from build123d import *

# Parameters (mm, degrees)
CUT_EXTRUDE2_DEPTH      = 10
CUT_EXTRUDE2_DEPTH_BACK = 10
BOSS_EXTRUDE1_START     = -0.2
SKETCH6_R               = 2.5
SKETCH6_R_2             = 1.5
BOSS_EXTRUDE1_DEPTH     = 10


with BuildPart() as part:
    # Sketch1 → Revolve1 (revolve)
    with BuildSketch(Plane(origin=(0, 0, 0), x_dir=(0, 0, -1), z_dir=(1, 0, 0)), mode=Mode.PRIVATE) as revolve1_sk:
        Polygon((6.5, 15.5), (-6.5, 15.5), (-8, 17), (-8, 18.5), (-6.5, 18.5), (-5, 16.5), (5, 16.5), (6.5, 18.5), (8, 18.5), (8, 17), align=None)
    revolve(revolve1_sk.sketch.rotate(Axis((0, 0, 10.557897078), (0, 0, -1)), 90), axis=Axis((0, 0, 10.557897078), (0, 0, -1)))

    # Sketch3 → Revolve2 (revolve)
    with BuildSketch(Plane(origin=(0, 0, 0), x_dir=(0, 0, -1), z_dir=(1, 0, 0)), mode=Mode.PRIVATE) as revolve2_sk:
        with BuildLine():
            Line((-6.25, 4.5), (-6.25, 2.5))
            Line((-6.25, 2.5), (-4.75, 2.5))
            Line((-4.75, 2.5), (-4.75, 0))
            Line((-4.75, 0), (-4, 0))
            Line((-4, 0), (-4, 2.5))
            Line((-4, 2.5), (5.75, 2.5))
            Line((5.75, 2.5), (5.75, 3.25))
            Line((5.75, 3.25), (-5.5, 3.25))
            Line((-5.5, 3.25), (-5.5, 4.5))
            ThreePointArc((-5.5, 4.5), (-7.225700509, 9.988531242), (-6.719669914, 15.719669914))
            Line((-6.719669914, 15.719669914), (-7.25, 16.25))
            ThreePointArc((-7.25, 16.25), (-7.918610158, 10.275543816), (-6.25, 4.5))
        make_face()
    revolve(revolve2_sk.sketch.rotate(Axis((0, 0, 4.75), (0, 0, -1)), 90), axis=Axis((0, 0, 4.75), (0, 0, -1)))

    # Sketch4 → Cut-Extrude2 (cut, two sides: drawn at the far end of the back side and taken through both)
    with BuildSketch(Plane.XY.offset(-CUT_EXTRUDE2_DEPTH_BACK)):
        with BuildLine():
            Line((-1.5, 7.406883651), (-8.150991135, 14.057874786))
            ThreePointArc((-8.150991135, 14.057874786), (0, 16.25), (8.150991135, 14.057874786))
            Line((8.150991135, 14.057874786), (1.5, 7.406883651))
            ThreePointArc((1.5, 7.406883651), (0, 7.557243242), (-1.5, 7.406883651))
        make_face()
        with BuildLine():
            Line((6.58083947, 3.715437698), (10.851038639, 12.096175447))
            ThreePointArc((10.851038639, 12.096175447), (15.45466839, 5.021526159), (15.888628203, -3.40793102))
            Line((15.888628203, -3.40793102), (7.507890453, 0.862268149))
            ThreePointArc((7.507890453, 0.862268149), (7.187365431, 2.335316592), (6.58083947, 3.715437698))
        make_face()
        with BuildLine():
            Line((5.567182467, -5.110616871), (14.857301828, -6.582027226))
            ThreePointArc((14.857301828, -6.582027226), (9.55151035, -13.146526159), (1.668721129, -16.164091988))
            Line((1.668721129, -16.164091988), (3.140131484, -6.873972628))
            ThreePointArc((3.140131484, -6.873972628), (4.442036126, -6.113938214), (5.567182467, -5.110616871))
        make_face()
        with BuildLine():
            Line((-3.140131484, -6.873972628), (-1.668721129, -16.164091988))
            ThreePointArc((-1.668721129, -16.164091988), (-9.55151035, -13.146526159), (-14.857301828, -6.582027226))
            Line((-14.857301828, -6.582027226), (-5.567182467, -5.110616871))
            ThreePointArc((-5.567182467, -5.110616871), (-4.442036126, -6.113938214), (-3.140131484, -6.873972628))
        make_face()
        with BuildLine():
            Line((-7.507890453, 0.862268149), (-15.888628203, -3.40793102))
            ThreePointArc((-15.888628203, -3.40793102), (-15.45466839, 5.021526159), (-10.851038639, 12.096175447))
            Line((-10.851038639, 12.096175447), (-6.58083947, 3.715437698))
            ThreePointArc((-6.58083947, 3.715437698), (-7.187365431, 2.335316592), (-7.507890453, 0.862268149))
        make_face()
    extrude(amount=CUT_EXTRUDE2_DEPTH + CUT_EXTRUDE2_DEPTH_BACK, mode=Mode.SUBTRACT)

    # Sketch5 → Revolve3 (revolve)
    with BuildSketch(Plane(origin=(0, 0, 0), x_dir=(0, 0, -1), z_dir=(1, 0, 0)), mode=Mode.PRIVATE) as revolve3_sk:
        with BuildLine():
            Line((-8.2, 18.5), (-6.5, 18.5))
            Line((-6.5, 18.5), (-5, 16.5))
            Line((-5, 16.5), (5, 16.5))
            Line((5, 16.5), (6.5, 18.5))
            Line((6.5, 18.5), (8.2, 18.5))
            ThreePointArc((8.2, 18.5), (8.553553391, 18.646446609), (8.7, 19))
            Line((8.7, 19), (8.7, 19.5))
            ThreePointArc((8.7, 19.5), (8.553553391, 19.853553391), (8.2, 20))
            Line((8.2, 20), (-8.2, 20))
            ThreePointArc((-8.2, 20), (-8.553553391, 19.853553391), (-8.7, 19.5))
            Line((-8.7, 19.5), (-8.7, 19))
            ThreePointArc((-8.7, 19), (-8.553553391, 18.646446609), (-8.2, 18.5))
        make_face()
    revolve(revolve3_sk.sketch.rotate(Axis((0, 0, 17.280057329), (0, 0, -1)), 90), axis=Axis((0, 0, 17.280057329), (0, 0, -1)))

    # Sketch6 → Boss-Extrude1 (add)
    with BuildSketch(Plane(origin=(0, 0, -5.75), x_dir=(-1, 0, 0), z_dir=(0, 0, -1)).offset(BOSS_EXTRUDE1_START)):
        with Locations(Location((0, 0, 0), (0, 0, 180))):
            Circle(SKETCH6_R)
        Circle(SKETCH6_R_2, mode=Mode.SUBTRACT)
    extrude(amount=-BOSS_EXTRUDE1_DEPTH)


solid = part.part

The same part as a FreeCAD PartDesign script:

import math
import FreeCAD as App
import Part
import Sketcher

V = App.Vector
Q = App.Units.Quantity

doc = App.newDocument("Part")
body = doc.addObject("PartDesign::Body", "Body")

# Sketch on YZ plane
sketch1 = body.newObject("Sketcher::SketchObject", "Sketch")
sketch1.AttachmentSupport = (doc.getObject("YZ_Plane"), [""])
sketch1.MapMode = "FlatFace"
sketch1.addGeometry(Part.LineSegment(V(15.5, 6.5, 0), V(15.5, -6.5, 0)), False)
sketch1.addGeometry(Part.LineSegment(V(15.5, -6.5, 0), V(17, -8, 0)), False)
sketch1.addGeometry(Part.LineSegment(V(17, -8, 0), V(18.5, -8, 0)), False)
sketch1.addGeometry(Part.LineSegment(V(18.5, -8, 0), V(18.5, -6.5, 0)), False)
sketch1.addGeometry(Part.LineSegment(V(18.5, -6.5, 0), V(16.5, -5, 0)), False)
sketch1.addGeometry(Part.LineSegment(V(16.5, -5, 0), V(16.5, 5, 0)), False)
sketch1.addGeometry(Part.LineSegment(V(16.5, 5, 0), V(18.5, 6.5, 0)), False)
sketch1.addGeometry(Part.LineSegment(V(18.5, 6.5, 0), V(18.5, 8, 0)), False)
sketch1.addGeometry(Part.LineSegment(V(18.5, 8, 0), V(17, 8, 0)), False)
sketch1.addGeometry(Part.LineSegment(V(17, 8, 0), V(15.5, 6.5, 0)), False)
sketch1.addConstraint(Sketcher.Constraint("Coincident", 0, 2, 1, 1))
sketch1.addConstraint(Sketcher.Constraint("Coincident", 1, 2, 2, 1))
sketch1.addConstraint(Sketcher.Constraint("Coincident", 2, 2, 3, 1))
sketch1.addConstraint(Sketcher.Constraint("Coincident", 3, 2, 4, 1))
sketch1.addConstraint(Sketcher.Constraint("Coincident", 4, 2, 5, 1))
sketch1.addConstraint(Sketcher.Constraint("Coincident", 5, 2, 6, 1))
sketch1.addConstraint(Sketcher.Constraint("Coincident", 6, 2, 7, 1))
sketch1.addConstraint(Sketcher.Constraint("Coincident", 7, 2, 8, 1))
sketch1.addConstraint(Sketcher.Constraint("Coincident", 8, 2, 9, 1))
sketch1.addConstraint(Sketcher.Constraint("Coincident", 9, 2, 0, 1))
sketch1.addConstraint(Sketcher.Constraint("Vertical", 0))
sketch1.addConstraint(Sketcher.Constraint("Horizontal", 2))
sketch1.addConstraint(Sketcher.Constraint("Vertical", 3))
sketch1.addConstraint(Sketcher.Constraint("Vertical", 5))
sketch1.addConstraint(Sketcher.Constraint("Vertical", 7))
sketch1.addConstraint(Sketcher.Constraint("Horizontal", 8))
sketch1.addConstraint(Sketcher.Constraint("Symmetric", 3, 2, 6, 2, -1))
sketch1.addConstraint(Sketcher.Constraint("Symmetric", 1, 2, 8, 2, -1))
sketch1.addConstraint(Sketcher.Constraint("Perpendicular", 1, 9))
sketch1.addConstraint(Sketcher.Constraint("Horizontal", 0, 2, 3, 2))
sketch1.addConstraint(Sketcher.Constraint("Horizontal", 6, 2, 9, 2))
sketch1.addConstraint(Sketcher.Constraint("Equal", 8, 3))
sketch1.addConstraint(Sketcher.Constraint("Equal", 4, 6))
sketch1.addConstraint(Sketcher.Constraint("DistanceY", 0, 2, 0, 1, Q("13 mm")))
sketch1.addConstraint(Sketcher.Constraint("DistanceY", 5, 1, 5, 2, Q("10 mm")))
sketch1.addConstraint(Sketcher.Constraint("DistanceX", 2, 1, 2, 2, Q("1.5 mm")))
sketch1.addConstraint(Sketcher.Constraint("DistanceX", -1, 1, 1, 2, Q("17 mm")))
sketch1.addConstraint(Sketcher.Constraint("DistanceX", 0, 2, 4, 2, Q("1 mm")))
revolution = body.newObject("PartDesign::Revolution", "Revolution")
revolution.Profile = sketch1
revolution.ReferenceAxis = (sketch1, ["V_Axis"])
revolution.Angle = 360

# Sketch on YZ plane
sketch2 = body.newObject("Sketcher::SketchObject", "Sketch001")
sketch2.AttachmentSupport = (doc.getObject("YZ_Plane"), [""])
sketch2.MapMode = "FlatFace"
sketch2.addGeometry(Part.LineSegment(V(4.5, 6.2, 0), V(2.5, 6.2, 0)), False)
sketch2.addGeometry(Part.LineSegment(V(2.5, 6.2, 0), V(2.5, 4.8, 0)), False)
sketch2.addGeometry(Part.LineSegment(V(2.5, 4.8, 0), V(0, 4.8, 0)), False)
sketch2.addGeometry(Part.LineSegment(V(0, 4.8, 0), V(0, 4, 0)), False)
sketch2.addGeometry(Part.LineSegment(V(0, 4, 0), V(2.5, 4, 0)), False)
sketch2.addGeometry(Part.LineSegment(V(2.5, 4, 0), V(2.5, -5.8, 0)), False)
sketch2.addGeometry(Part.LineSegment(V(2.5, -5.8, 0), V(3.2, -5.8, 0)), False)
sketch2.addGeometry(Part.LineSegment(V(3.2, -5.8, 0), V(3.2, 5.5, 0)), False)
sketch2.addGeometry(Part.LineSegment(V(3.2, 5.5, 0), V(4.5, 5.5, 0)), False)
sketch2.addGeometry(Part.ArcOfCircle(Part.Circle(V(11.6, -7.4, 0), V(0, 0, 1), 14.7), math.radians(74), math.radians(119)), False)
sketch2.addGeometry(Part.LineSegment(V(15.7, 6.7, 0), V(16.2, 7.2, 0)), False)
sketch2.addGeometry(Part.ArcOfCircle(Part.Circle(V(11.6, -7.4, 0), V(0, 0, 1), 15.4), math.radians(72), math.radians(117)), False)
sketch2.addConstraint(Sketcher.Constraint("Coincident", 0, 2, 1, 1))
sketch2.addConstraint(Sketcher.Constraint("Coincident", 1, 2, 2, 1))
sketch2.addConstraint(Sketcher.Constraint("Coincident", 2, 2, 3, 1))
sketch2.addConstraint(Sketcher.Constraint("Coincident", 3, 2, 4, 1))
sketch2.addConstraint(Sketcher.Constraint("Coincident", 4, 2, 5, 1))
sketch2.addConstraint(Sketcher.Constraint("Coincident", 5, 2, 6, 1))
sketch2.addConstraint(Sketcher.Constraint("Coincident", 6, 2, 7, 1))
sketch2.addConstraint(Sketcher.Constraint("Coincident", 7, 2, 8, 1))
sketch2.addConstraint(Sketcher.Constraint("Coincident", 8, 2, 9, 2))
sketch2.addConstraint(Sketcher.Constraint("Coincident", 9, 1, 10, 1))
sketch2.addConstraint(Sketcher.Constraint("Coincident", 10, 2, 11, 1))
sketch2.addConstraint(Sketcher.Constraint("Coincident", 11, 2, 0, 1))
sketch2.addConstraint(Sketcher.Constraint("Horizontal", 0))
sketch2.addConstraint(Sketcher.Constraint("Vertical", 1))
sketch2.addConstraint(Sketcher.Constraint("Horizontal", 2))
sketch2.addConstraint(Sketcher.Constraint("Vertical", 3))
sketch2.addConstraint(Sketcher.Constraint("Horizontal", 4))
sketch2.addConstraint(Sketcher.Constraint("Vertical", 5))
sketch2.addConstraint(Sketcher.Constraint("Horizontal", 6))
sketch2.addConstraint(Sketcher.Constraint("Vertical", 7))
sketch2.addConstraint(Sketcher.Constraint("Horizontal", 8))
sketch2.addConstraint(Sketcher.Constraint("Coincident", 11, 3, 9, 3))
sketch2.addConstraint(Sketcher.Constraint("PointOnObject", 2, 2, -2))
sketch2.addConstraint(Sketcher.Constraint("Vertical", 1, 2, 4, 2))
sketch2.addConstraint(Sketcher.Constraint("Vertical", 8, 2, 11, 2))
sketch2.addConstraint(Sketcher.Constraint("Equal", 6, 3))
sketch2.addConstraint(Sketcher.Constraint("DistanceX", 0, 2, 0, 1, Q("2 mm")))
sketch2.addConstraint(Sketcher.Constraint("Angle", 10, Q("45 deg")))
sketch2.addConstraint(Sketcher.Constraint("DistanceX", 2, 2, 2, 1, Q("2.5 mm")))
sketch2.addConstraint(Sketcher.Constraint("DistanceY", 1, 2, 1, 1, Q("1.5 mm")))
sketch2.addConstraint(Sketcher.Constraint("DistanceY", -1, 1, 3, 2, Q("4 mm")))
sketch2.addConstraint(Sketcher.Constraint("DistanceX", 7, 2, 10, 2, Q("13 mm")))
sketch2.addConstraint(Sketcher.Constraint("DistanceY", 0, 2, 10, 2, Q("1 mm")))
sketch2.addConstraint(Sketcher.Constraint("DistanceX", 6, 1, 6, 2, Q("0.75 mm")))
sketch2.addConstraint(Sketcher.Constraint("DistanceY", 5, 2, 5, 1, Q("9.75 mm")))
sketch2.addConstraint(Sketcher.Constraint("DistanceY", 7, 1, 7, 2, Q("11.25 mm")))
sketch2.addConstraint(Sketcher.Constraint("Distance", 10, Q("0.75 mm")))
revolution2 = body.newObject("PartDesign::Revolution", "Revolution001")
revolution2.Profile = sketch2
revolution2.ReferenceAxis = (sketch2, ["V_Axis"])
revolution2.Angle = 360

# Sketch on XY plane
sketch3 = body.newObject("Sketcher::SketchObject", "Sketch002")
sketch3.AttachmentSupport = (doc.getObject("XY_Plane"), [""])
sketch3.MapMode = "FlatFace"
sketch3.addGeometry(Part.LineSegment(V(-8.2, 14.1, 0), V(-1.5, 7.4, 0)), False)
sketch3.addGeometry(Part.ArcOfCircle(Part.Circle(V(0, 0, 0), V(0, 0, 1), 7.6), math.radians(79), math.radians(101)), False)
sketch3.addGeometry(Part.LineSegment(V(1.5, 7.4, 0), V(8.2, 14.1, 0)), False)
sketch3.addGeometry(Part.ArcOfCircle(Part.Circle(V(0, 0, 0), V(0, 0, 1), 16.2), math.radians(60), math.radians(120)), False)
sketch3.addGeometry(Part.LineSegment(V(10.9, 12.1, 0), V(6.6, 3.7, 0)), False)
sketch3.addGeometry(Part.ArcOfCircle(Part.Circle(V(0, 0, 0), V(0, 0, 1), 7.6), math.radians(7), math.radians(29)), False)
sketch3.addGeometry(Part.LineSegment(V(7.5, 0.9, 0), V(15.9, -3.4, 0)), False)
sketch3.addGeometry(Part.ArcOfCircle(Part.Circle(V(0, 0, 0), V(0, 0, 1), 16.2), math.radians(-12), math.radians(48)), False)
sketch3.addGeometry(Part.LineSegment(V(14.9, -6.6, 0), V(5.6, -5.1, 0)), False)
sketch3.addGeometry(Part.ArcOfCircle(Part.Circle(V(0, 0, 0), V(0, 0, 1), 7.6), math.radians(-65), math.radians(-43)), False)
sketch3.addGeometry(Part.LineSegment(V(3.1, -6.9, 0), V(1.7, -16.2, 0)), False)
sketch3.addGeometry(Part.ArcOfCircle(Part.Circle(V(0, 0, 0), V(0, 0, 1), 16.2), math.radians(-84), math.radians(-24)), False)
sketch3.addGeometry(Part.LineSegment(V(-1.7, -16.2, 0), V(-3.1, -6.9, 0)), False)
sketch3.addGeometry(Part.ArcOfCircle(Part.Circle(V(0, 0, 0), V(0, 0, 1), 7.6), math.radians(-137), math.radians(-115)), False)
sketch3.addGeometry(Part.LineSegment(V(-5.6, -5.1, 0), V(-14.9, -6.6, 0)), False)
sketch3.addGeometry(Part.ArcOfCircle(Part.Circle(V(0, 0, 0), V(0, 0, 1), 16.2), math.radians(-156), math.radians(-96)), False)
sketch3.addGeometry(Part.LineSegment(V(-15.9, -3.4, 0), V(-7.5, 0.9, 0)), False)
sketch3.addGeometry(Part.ArcOfCircle(Part.Circle(V(0, 0, 0), V(0, 0, 1), 7.6), math.radians(151), math.radians(173)), False)
sketch3.addGeometry(Part.LineSegment(V(-6.6, 3.7, 0), V(-10.9, 12.1, 0)), False)
sketch3.addGeometry(Part.ArcOfCircle(Part.Circle(V(0, 0, 0), V(0, 0, 1), 16.2), math.radians(132), math.radians(192)), False)
sketch3.addConstraint(Sketcher.Constraint("Coincident", 0, 2, 1, 2))
sketch3.addConstraint(Sketcher.Constraint("Coincident", 1, 1, 2, 1))
sketch3.addConstraint(Sketcher.Constraint("Coincident", 2, 2, 3, 1))
sketch3.addConstraint(Sketcher.Constraint("Coincident", 3, 2, 0, 1))
sketch3.addConstraint(Sketcher.Constraint("Coincident", 4, 2, 5, 2))
sketch3.addConstraint(Sketcher.Constraint("Coincident", 5, 1, 6, 1))
sketch3.addConstraint(Sketcher.Constraint("Coincident", 6, 2, 7, 1))
sketch3.addConstraint(Sketcher.Constraint("Coincident", 7, 2, 4, 1))
sketch3.addConstraint(Sketcher.Constraint("Coincident", 8, 2, 9, 2))
sketch3.addConstraint(Sketcher.Constraint("Coincident", 9, 1, 10, 1))
sketch3.addConstraint(Sketcher.Constraint("Coincident", 10, 2, 11, 1))
sketch3.addConstraint(Sketcher.Constraint("Coincident", 11, 2, 8, 1))
sketch3.addConstraint(Sketcher.Constraint("Coincident", 12, 2, 13, 2))
sketch3.addConstraint(Sketcher.Constraint("Coincident", 13, 1, 14, 1))
sketch3.addConstraint(Sketcher.Constraint("Coincident", 14, 2, 15, 1))
sketch3.addConstraint(Sketcher.Constraint("Coincident", 15, 2, 12, 1))
sketch3.addConstraint(Sketcher.Constraint("Coincident", 16, 2, 17, 2))
sketch3.addConstraint(Sketcher.Constraint("Coincident", 17, 1, 18, 1))
sketch3.addConstraint(Sketcher.Constraint("Coincident", 18, 2, 19, 1))
sketch3.addConstraint(Sketcher.Constraint("Coincident", 19, 2, 16, 1))
sketch3.addConstraint(Sketcher.Constraint("Coincident", 1, 3, -1, 1))
sketch3.addConstraint(Sketcher.Constraint("Coincident", 3, 3, -1, 1))
sketch3.addConstraint(Sketcher.Constraint("Coincident", 5, 3, -1, 1))
sketch3.addConstraint(Sketcher.Constraint("Coincident", 7, 3, -1, 1))
sketch3.addConstraint(Sketcher.Constraint("Coincident", 9, 3, -1, 1))
sketch3.addConstraint(Sketcher.Constraint("Coincident", 11, 3, -1, 1))
sketch3.addConstraint(Sketcher.Constraint("Coincident", 13, 3, -1, 1))
sketch3.addConstraint(Sketcher.Constraint("Coincident", 15, 3, -1, 1))
sketch3.addConstraint(Sketcher.Constraint("Coincident", 17, 3, -1, 1))
sketch3.addConstraint(Sketcher.Constraint("Coincident", 19, 3, -1, 1))
sketch3.addConstraint(Sketcher.Constraint("Equal", 1, 5))
sketch3.addConstraint(Sketcher.Constraint("Equal", 3, 7))
sketch3.addConstraint(Sketcher.Constraint("Equal", 5, 9))
sketch3.addConstraint(Sketcher.Constraint("Equal", 7, 11))
sketch3.addConstraint(Sketcher.Constraint("Equal", 9, 13))
sketch3.addConstraint(Sketcher.Constraint("Equal", 11, 15))
sketch3.addConstraint(Sketcher.Constraint("Equal", 13, 17))
sketch3.addConstraint(Sketcher.Constraint("Equal", 15, 19))
sketch3.addConstraint(Sketcher.Constraint("Perpendicular", 0, 2))
sketch3.addConstraint(Sketcher.Constraint("Perpendicular", 4, 6))
sketch3.addConstraint(Sketcher.Constraint("Perpendicular", 8, 10))
sketch3.addConstraint(Sketcher.Constraint("Perpendicular", 12, 14))
sketch3.addConstraint(Sketcher.Constraint("Perpendicular", 16, 18))
sketch3.addConstraint(Sketcher.Constraint("Horizontal", 0, 2, 1, 1))
sketch3.addConstraint(Sketcher.Constraint("Horizontal", 2, 2, 3, 2))
sketch3.addConstraint(Sketcher.Constraint("Horizontal", 9, 1, 12, 2))
sketch3.addConstraint(Sketcher.Constraint("Horizontal", 8, 2, 13, 1))
sketch3.addConstraint(Sketcher.Constraint("Horizontal", 11, 2, 14, 2))
sketch3.addConstraint(Sketcher.Constraint("Horizontal", 5, 1, 16, 2))
sketch3.addConstraint(Sketcher.Constraint("Horizontal", 4, 2, 17, 1))
sketch3.addConstraint(Sketcher.Constraint("Horizontal", 7, 2, 18, 2))
sketch3.addConstraint(Sketcher.Constraint("Equal", 2, 4))
sketch3.addConstraint(Sketcher.Constraint("Equal", 4, 6))
sketch3.addConstraint(Sketcher.Constraint("Equal", 6, 8))
sketch3.addConstraint(Sketcher.Constraint("Equal", 8, 10))
sketch3.addConstraint(Sketcher.Constraint("Angle", 4, Q("-117 deg")))
sketch3.addConstraint(Sketcher.Constraint("Angle", 8, Q("171 deg")))
sketch3.addConstraint(Sketcher.Constraint("Radius", 3, Q("16.25 mm")))
sketch3.addConstraint(Sketcher.Constraint("DistanceX", 0, 2, 1, 1, Q("3 mm")))
sketch3.addConstraint(Sketcher.Constraint("Radius", 1, Q("7.557243 mm")))
pocket1 = body.newObject("PartDesign::Pocket", "Pocket")
pocket1.Profile = sketch3
pocket1.Type = "ThroughAll"
pocket1.Midplane = True

# Sketch on YZ plane
sketch4 = body.newObject("Sketcher::SketchObject", "Sketch003")
sketch4.AttachmentSupport = (doc.getObject("YZ_Plane"), [""])
sketch4.MapMode = "FlatFace"
sketch4.addGeometry(Part.LineSegment(V(18.5, 8.2, 0), V(18.5, 6.5, 0)), False)
sketch4.addGeometry(Part.LineSegment(V(18.5, 6.5, 0), V(16.5, 5, 0)), False)
sketch4.addGeometry(Part.LineSegment(V(16.5, 5, 0), V(16.5, -5, 0)), False)
sketch4.addGeometry(Part.LineSegment(V(16.5, -5, 0), V(18.5, -6.5, 0)), False)
sketch4.addGeometry(Part.LineSegment(V(18.5, -6.5, 0), V(18.5, -8.2, 0)), False)
sketch4.addGeometry(Part.ArcOfCircle(Part.Circle(V(19, -8.2, 0), V(0, 0, 1), 0.5), math.radians(180), math.radians(270)), False)
sketch4.addGeometry(Part.LineSegment(V(19, -8.7, 0), V(19.5, -8.7, 0)), False)
sketch4.addGeometry(Part.ArcOfCircle(Part.Circle(V(19.5, -8.2, 0), V(0, 0, 1), 0.5), math.radians(-90), math.radians(0)), False)
sketch4.addGeometry(Part.LineSegment(V(20, -8.2, 0), V(20, 8.2, 0)), False)
sketch4.addGeometry(Part.ArcOfCircle(Part.Circle(V(19.5, 8.2, 0), V(0, 0, 1), 0.5), math.radians(0), math.radians(90)), False)
sketch4.addGeometry(Part.LineSegment(V(19.5, 8.7, 0), V(19, 8.7, 0)), False)
sketch4.addGeometry(Part.ArcOfCircle(Part.Circle(V(19, 8.2, 0), V(0, 0, 1), 0.5), math.radians(90), math.radians(180)), False)
sketch4.addConstraint(Sketcher.Constraint("Coincident", 0, 2, 1, 1))
sketch4.addConstraint(Sketcher.Constraint("Coincident", 1, 2, 2, 1))
sketch4.addConstraint(Sketcher.Constraint("Coincident", 2, 2, 3, 1))
sketch4.addConstraint(Sketcher.Constraint("Coincident", 3, 2, 4, 1))
sketch4.addConstraint(Sketcher.Constraint("Tangent", 4, 2, 5, 1))
sketch4.addConstraint(Sketcher.Constraint("Tangent", 5, 2, 6, 1))
sketch4.addConstraint(Sketcher.Constraint("Tangent", 6, 2, 7, 1))
sketch4.addConstraint(Sketcher.Constraint("Tangent", 7, 2, 8, 1))
sketch4.addConstraint(Sketcher.Constraint("Tangent", 8, 2, 9, 1))
sketch4.addConstraint(Sketcher.Constraint("Tangent", 9, 2, 10, 1))
sketch4.addConstraint(Sketcher.Constraint("Tangent", 10, 2, 11, 1))
sketch4.addConstraint(Sketcher.Constraint("Tangent", 11, 2, 0, 1))
sketch4.addConstraint(Sketcher.Constraint("Vertical", 0))
sketch4.addConstraint(Sketcher.Constraint("Vertical", 2))
sketch4.addConstraint(Sketcher.Constraint("Vertical", 4))
sketch4.addConstraint(Sketcher.Constraint("Horizontal", 6))
sketch4.addConstraint(Sketcher.Constraint("Vertical", 8))
sketch4.addConstraint(Sketcher.Constraint("Horizontal", 10))
sketch4.addConstraint(Sketcher.Constraint("Equal", 5, 7))
sketch4.addConstraint(Sketcher.Constraint("Equal", 7, 9))
sketch4.addConstraint(Sketcher.Constraint("Equal", 9, 11))
sketch4.addConstraint(Sketcher.Constraint("Symmetric", 5, 3, 11, 3, -1))
sketch4.addConstraint(Sketcher.Constraint("Equal", 0, 4))
sketch4.addConstraint(Sketcher.Constraint("Equal", 1, 3))
sketch4.addConstraint(Sketcher.Constraint("Radius", 5, Q("0.5 mm")))
sketch4.addConstraint(Sketcher.Constraint("DistanceY", 2, 2, 2, 1, Q("10 mm")))
sketch4.addConstraint(Sketcher.Constraint("DistanceX", 6, 1, 6, 2, Q("0.5 mm")))
sketch4.addConstraint(Sketcher.Constraint("DistanceY", 0, 2, 0, 1, Q("1.7 mm")))
sketch4.addConstraint(Sketcher.Constraint("DistanceY", 8, 1, 8, 2, Q("16.4 mm")))
sketch4.addConstraint(Sketcher.Constraint("DistanceX", -1, 1, 5, 3, Q("19 mm")))
sketch4.addConstraint(Sketcher.Constraint("DistanceX", 1, 2, 0, 2, Q("2 mm")))
revolution3 = body.newObject("PartDesign::Revolution", "Revolution002")
revolution3.Profile = sketch4
revolution3.ReferenceAxis = (sketch4, ["V_Axis"])
revolution3.Angle = 360

# Sketch on XY plane
sketch5 = body.newObject("Sketcher::SketchObject", "Sketch004")
sketch5.AttachmentSupport = (doc.getObject("XY_Plane"), [""])
sketch5.MapMode = "FlatFace"
sketch5.AttachmentOffset = App.Placement(V(0, 0, -5.55), App.Rotation())
sketch5.addGeometry(Part.Circle(V(0, 0, 0), V(0, 0, 1), 2.5), False)
sketch5.addGeometry(Part.Circle(V(0, 0, 0), V(0, 0, 1), 1.5), False)
sketch5.addConstraint(Sketcher.Constraint("Coincident", 0, 3, -1, 1))
sketch5.addConstraint(Sketcher.Constraint("Coincident", 1, 3, -1, 1))
sketch5.addConstraint(Sketcher.Constraint("Diameter", 0, Q("5 mm")))
sketch5.addConstraint(Sketcher.Constraint("Diameter", 1, Q("3 mm")))
pad1 = body.newObject("PartDesign::Pad", "Pad")
pad1.Profile = sketch5
pad1.Length = 10

doc.recompute()
